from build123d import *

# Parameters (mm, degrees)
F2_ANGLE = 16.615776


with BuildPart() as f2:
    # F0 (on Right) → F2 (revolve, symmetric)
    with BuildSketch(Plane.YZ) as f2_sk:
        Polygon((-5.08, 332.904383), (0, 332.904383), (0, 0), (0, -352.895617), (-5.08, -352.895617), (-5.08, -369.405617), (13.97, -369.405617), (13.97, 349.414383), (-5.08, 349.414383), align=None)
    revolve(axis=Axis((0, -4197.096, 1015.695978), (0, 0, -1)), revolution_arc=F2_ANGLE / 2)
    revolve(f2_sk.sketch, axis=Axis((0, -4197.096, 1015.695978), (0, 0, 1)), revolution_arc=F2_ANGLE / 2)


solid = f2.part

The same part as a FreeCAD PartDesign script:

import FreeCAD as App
import Part
import Sketcher
Q = App.Units.Quantity


def add_polygon(sketch, points):
    """Adds a closed chain of lines whose ends are joined by coincident constraints."""
    first, n = sketch.GeometryCount, len(points)
    for a, b in zip(points, points[1:] + points[:1]):
        sketch.addGeometry(Part.LineSegment(App.Vector(*a, 0), App.Vector(*b, 0)), False)
    for i in range(n):
        sketch.addConstraint(Sketcher.Constraint("Coincident", first + i, 2, first + (i + 1) % n, 1))

doc = App.newDocument("Part")
params = doc.addObject("Spreadsheet::Sheet", "Params")
for row, (alias, value) in enumerate([
    ("sketch1_height", "27 in"),
    ("sketch1_width", "0.2 in"),
    ("sketch1_height2", "28.3 in"),
    ("sketch1_width2", "0.75 in"),
    ("revolution_angle", "8.307888 deg"),
    ("sketch2_height", "27 in"),
    ("sketch2_width", "0.2 in"),
    ("sketch2_height2", "28.3 in"),
    ("sketch2_width2", "0.75 in"),
    ("revolution2_angle", "8.307888 deg"),
], start=1):
    params.set(f"A{row}", alias)
    params.set(f"B{row}", "=" + value)
    params.setAlias(f"B{row}", alias)

body = doc.addObject("PartDesign::Body", "Body")

sketch1 = body.newObject("Sketcher::SketchObject", "Sketch")
sketch1.AttachmentSupport = (doc.getObject("YZ_Plane"), [""])
sketch1.MapMode = "FlatFace"
add_polygon(sketch1, [(-5, 333), (0, 333), (0, -353), (-5, -353), (-5, -369), (14, -369), (14, 349), (-5, 349)])
sketch1.addGeometry(Part.LineSegment(App.Vector(-4197, 349, 0), App.Vector(-4197, -369, 0)), True)
sketch1.addConstraint(Sketcher.Constraint("Horizontal", 0))
sketch1.addConstraint(Sketcher.Constraint("Vertical", 1))
sketch1.addConstraint(Sketcher.Constraint("Horizontal", 2))
sketch1.addConstraint(Sketcher.Constraint("Vertical", 3))
sketch1.addConstraint(Sketcher.Constraint("Horizontal", 4))
sketch1.addConstraint(Sketcher.Constraint("Vertical", 5))
sketch1.addConstraint(Sketcher.Constraint("Horizontal", 6))
sketch1.addConstraint(Sketcher.Constraint("Vertical", 7))
sketch1.addConstraint(Sketcher.Constraint("Vertical", 8))
sketch1.addConstraint(Sketcher.Constraint("PointOnObject", 0, 2, -2))
sketch1.addConstraint(Sketcher.Constraint("Horizontal", 6, 2, 8, 1))
sketch1.addConstraint(Sketcher.Constraint("Horizontal", 4, 2, 8, 2))
sketch1.addConstraint(Sketcher.Constraint("Vertical", 3, 2, 6, 2))
sketch1.addConstraint(Sketcher.Constraint("Equal", 3, 7))
sketch1.addConstraint(Sketcher.Constraint("DistanceY", 1, 2, 1, 1, Q("27 in")))
sketch1.addConstraint(Sketcher.Constraint("DistanceX", 0, 1, 0, 2, Q("0.2 in")))
sketch1.addConstraint(Sketcher.Constraint("DistanceY", 5, 1, 5, 2, Q("28.3 in")))
sketch1.addConstraint(Sketcher.Constraint("DistanceX", 4, 1, 4, 2, Q("0.75 in")))
sketch1.addConstraint(Sketcher.Constraint("DistanceX", 8, 1, -1, 1, Q("165.24 in")))
sketch1.addConstraint(Sketcher.Constraint("DistanceY", -1, 1, 0, 2, 332.904383))
sketch1.setExpression("Constraints[22]", "Params.sketch1_height")
sketch1.setExpression("Constraints[23]", "Params.sketch1_width")
sketch1.setExpression("Constraints[24]", "Params.sketch1_height2")
sketch1.setExpression("Constraints[25]", "Params.sketch1_width2")
revolution = body.newObject("PartDesign::Revolution", "Revolution")
revolution.Profile = sketch1
revolution.ReferenceAxis = (sketch1, ["Axis0"])
revolution.setExpression("Angle", "Params.revolution_angle")

sketch2 = body.newObject("Sketcher::SketchObject", "Sketch001")
sketch2.AttachmentSupport = (doc.getObject("YZ_Plane"), [""])
sketch2.MapMode = "FlatFace"
add_polygon(sketch2, [(-5, 333), (0, 333), (0, -353), (-5, -353), (-5, -369), (14, -369), (14, 349), (-5, 349)])
sketch2.addGeometry(Part.LineSegment(App.Vector(-4197, -369, 0), App.Vector(-4197, 349, 0)), True)
sketch2.addConstraint(Sketcher.Constraint("Horizontal", 0))
sketch2.addConstraint(Sketcher.Constraint("Vertical", 1))
sketch2.addConstraint(Sketcher.Constraint("Horizontal", 2))
sketch2.addConstraint(Sketcher.Constraint("Vertical", 3))
sketch2.addConstraint(Sketcher.Constraint("Horizontal", 4))
sketch2.addConstraint(Sketcher.Constraint("Vertical", 5))
sketch2.addConstraint(Sketcher.Constraint("Horizontal", 6))
sketch2.addConstraint(Sketcher.Constraint("Vertical", 7))
sketch2.addConstraint(Sketcher.Constraint("Vertical", 8))
sketch2.addConstraint(Sketcher.Constraint("PointOnObject", 0, 2, -2))
sketch2.addConstraint(Sketcher.Constraint("Horizontal", 4, 2, 8, 1))
sketch2.addConstraint(Sketcher.Constraint("Horizontal", 6, 2, 8, 2))
sketch2.addConstraint(Sketcher.Constraint("Vertical", 3, 2, 6, 2))
sketch2.addConstraint(Sketcher.Constraint("Equal", 3, 7))
sketch2.addConstraint(Sketcher.Constraint("DistanceY", 1, 2, 1, 1, Q("27 in")))
sketch2.addConstraint(Sketcher.Constraint("DistanceX", 0, 1, 0, 2, Q("0.2 in")))
sketch2.addConstraint(Sketcher.Constraint("DistanceY", 5, 1, 5, 2, Q("28.3 in")))
sketch2.addConstraint(Sketcher.Constraint("DistanceX", 4, 1, 4, 2, Q("0.75 in")))
sketch2.addConstraint(Sketcher.Constraint("DistanceX", 8, 1, -1, 1, Q("165.24 in")))
sketch2.addConstraint(Sketcher.Constraint("DistanceY", -1, 1, 0, 2, 332.904383))
sketch2.setExpression("Constraints[22]", "Params.sketch2_height")
sketch2.setExpression("Constraints[23]", "Params.sketch2_width")
sketch2.setExpression("Constraints[24]", "Params.sketch2_height2")
sketch2.setExpression("Constraints[25]", "Params.sketch2_width2")
revolution2 = body.newObject("PartDesign::Revolution", "Revolution001")
revolution2.Profile = sketch2
revolution2.ReferenceAxis = (sketch2, ["Axis0"])
revolution2.setExpression("Angle", "Params.revolution2_angle")

doc.recompute()
